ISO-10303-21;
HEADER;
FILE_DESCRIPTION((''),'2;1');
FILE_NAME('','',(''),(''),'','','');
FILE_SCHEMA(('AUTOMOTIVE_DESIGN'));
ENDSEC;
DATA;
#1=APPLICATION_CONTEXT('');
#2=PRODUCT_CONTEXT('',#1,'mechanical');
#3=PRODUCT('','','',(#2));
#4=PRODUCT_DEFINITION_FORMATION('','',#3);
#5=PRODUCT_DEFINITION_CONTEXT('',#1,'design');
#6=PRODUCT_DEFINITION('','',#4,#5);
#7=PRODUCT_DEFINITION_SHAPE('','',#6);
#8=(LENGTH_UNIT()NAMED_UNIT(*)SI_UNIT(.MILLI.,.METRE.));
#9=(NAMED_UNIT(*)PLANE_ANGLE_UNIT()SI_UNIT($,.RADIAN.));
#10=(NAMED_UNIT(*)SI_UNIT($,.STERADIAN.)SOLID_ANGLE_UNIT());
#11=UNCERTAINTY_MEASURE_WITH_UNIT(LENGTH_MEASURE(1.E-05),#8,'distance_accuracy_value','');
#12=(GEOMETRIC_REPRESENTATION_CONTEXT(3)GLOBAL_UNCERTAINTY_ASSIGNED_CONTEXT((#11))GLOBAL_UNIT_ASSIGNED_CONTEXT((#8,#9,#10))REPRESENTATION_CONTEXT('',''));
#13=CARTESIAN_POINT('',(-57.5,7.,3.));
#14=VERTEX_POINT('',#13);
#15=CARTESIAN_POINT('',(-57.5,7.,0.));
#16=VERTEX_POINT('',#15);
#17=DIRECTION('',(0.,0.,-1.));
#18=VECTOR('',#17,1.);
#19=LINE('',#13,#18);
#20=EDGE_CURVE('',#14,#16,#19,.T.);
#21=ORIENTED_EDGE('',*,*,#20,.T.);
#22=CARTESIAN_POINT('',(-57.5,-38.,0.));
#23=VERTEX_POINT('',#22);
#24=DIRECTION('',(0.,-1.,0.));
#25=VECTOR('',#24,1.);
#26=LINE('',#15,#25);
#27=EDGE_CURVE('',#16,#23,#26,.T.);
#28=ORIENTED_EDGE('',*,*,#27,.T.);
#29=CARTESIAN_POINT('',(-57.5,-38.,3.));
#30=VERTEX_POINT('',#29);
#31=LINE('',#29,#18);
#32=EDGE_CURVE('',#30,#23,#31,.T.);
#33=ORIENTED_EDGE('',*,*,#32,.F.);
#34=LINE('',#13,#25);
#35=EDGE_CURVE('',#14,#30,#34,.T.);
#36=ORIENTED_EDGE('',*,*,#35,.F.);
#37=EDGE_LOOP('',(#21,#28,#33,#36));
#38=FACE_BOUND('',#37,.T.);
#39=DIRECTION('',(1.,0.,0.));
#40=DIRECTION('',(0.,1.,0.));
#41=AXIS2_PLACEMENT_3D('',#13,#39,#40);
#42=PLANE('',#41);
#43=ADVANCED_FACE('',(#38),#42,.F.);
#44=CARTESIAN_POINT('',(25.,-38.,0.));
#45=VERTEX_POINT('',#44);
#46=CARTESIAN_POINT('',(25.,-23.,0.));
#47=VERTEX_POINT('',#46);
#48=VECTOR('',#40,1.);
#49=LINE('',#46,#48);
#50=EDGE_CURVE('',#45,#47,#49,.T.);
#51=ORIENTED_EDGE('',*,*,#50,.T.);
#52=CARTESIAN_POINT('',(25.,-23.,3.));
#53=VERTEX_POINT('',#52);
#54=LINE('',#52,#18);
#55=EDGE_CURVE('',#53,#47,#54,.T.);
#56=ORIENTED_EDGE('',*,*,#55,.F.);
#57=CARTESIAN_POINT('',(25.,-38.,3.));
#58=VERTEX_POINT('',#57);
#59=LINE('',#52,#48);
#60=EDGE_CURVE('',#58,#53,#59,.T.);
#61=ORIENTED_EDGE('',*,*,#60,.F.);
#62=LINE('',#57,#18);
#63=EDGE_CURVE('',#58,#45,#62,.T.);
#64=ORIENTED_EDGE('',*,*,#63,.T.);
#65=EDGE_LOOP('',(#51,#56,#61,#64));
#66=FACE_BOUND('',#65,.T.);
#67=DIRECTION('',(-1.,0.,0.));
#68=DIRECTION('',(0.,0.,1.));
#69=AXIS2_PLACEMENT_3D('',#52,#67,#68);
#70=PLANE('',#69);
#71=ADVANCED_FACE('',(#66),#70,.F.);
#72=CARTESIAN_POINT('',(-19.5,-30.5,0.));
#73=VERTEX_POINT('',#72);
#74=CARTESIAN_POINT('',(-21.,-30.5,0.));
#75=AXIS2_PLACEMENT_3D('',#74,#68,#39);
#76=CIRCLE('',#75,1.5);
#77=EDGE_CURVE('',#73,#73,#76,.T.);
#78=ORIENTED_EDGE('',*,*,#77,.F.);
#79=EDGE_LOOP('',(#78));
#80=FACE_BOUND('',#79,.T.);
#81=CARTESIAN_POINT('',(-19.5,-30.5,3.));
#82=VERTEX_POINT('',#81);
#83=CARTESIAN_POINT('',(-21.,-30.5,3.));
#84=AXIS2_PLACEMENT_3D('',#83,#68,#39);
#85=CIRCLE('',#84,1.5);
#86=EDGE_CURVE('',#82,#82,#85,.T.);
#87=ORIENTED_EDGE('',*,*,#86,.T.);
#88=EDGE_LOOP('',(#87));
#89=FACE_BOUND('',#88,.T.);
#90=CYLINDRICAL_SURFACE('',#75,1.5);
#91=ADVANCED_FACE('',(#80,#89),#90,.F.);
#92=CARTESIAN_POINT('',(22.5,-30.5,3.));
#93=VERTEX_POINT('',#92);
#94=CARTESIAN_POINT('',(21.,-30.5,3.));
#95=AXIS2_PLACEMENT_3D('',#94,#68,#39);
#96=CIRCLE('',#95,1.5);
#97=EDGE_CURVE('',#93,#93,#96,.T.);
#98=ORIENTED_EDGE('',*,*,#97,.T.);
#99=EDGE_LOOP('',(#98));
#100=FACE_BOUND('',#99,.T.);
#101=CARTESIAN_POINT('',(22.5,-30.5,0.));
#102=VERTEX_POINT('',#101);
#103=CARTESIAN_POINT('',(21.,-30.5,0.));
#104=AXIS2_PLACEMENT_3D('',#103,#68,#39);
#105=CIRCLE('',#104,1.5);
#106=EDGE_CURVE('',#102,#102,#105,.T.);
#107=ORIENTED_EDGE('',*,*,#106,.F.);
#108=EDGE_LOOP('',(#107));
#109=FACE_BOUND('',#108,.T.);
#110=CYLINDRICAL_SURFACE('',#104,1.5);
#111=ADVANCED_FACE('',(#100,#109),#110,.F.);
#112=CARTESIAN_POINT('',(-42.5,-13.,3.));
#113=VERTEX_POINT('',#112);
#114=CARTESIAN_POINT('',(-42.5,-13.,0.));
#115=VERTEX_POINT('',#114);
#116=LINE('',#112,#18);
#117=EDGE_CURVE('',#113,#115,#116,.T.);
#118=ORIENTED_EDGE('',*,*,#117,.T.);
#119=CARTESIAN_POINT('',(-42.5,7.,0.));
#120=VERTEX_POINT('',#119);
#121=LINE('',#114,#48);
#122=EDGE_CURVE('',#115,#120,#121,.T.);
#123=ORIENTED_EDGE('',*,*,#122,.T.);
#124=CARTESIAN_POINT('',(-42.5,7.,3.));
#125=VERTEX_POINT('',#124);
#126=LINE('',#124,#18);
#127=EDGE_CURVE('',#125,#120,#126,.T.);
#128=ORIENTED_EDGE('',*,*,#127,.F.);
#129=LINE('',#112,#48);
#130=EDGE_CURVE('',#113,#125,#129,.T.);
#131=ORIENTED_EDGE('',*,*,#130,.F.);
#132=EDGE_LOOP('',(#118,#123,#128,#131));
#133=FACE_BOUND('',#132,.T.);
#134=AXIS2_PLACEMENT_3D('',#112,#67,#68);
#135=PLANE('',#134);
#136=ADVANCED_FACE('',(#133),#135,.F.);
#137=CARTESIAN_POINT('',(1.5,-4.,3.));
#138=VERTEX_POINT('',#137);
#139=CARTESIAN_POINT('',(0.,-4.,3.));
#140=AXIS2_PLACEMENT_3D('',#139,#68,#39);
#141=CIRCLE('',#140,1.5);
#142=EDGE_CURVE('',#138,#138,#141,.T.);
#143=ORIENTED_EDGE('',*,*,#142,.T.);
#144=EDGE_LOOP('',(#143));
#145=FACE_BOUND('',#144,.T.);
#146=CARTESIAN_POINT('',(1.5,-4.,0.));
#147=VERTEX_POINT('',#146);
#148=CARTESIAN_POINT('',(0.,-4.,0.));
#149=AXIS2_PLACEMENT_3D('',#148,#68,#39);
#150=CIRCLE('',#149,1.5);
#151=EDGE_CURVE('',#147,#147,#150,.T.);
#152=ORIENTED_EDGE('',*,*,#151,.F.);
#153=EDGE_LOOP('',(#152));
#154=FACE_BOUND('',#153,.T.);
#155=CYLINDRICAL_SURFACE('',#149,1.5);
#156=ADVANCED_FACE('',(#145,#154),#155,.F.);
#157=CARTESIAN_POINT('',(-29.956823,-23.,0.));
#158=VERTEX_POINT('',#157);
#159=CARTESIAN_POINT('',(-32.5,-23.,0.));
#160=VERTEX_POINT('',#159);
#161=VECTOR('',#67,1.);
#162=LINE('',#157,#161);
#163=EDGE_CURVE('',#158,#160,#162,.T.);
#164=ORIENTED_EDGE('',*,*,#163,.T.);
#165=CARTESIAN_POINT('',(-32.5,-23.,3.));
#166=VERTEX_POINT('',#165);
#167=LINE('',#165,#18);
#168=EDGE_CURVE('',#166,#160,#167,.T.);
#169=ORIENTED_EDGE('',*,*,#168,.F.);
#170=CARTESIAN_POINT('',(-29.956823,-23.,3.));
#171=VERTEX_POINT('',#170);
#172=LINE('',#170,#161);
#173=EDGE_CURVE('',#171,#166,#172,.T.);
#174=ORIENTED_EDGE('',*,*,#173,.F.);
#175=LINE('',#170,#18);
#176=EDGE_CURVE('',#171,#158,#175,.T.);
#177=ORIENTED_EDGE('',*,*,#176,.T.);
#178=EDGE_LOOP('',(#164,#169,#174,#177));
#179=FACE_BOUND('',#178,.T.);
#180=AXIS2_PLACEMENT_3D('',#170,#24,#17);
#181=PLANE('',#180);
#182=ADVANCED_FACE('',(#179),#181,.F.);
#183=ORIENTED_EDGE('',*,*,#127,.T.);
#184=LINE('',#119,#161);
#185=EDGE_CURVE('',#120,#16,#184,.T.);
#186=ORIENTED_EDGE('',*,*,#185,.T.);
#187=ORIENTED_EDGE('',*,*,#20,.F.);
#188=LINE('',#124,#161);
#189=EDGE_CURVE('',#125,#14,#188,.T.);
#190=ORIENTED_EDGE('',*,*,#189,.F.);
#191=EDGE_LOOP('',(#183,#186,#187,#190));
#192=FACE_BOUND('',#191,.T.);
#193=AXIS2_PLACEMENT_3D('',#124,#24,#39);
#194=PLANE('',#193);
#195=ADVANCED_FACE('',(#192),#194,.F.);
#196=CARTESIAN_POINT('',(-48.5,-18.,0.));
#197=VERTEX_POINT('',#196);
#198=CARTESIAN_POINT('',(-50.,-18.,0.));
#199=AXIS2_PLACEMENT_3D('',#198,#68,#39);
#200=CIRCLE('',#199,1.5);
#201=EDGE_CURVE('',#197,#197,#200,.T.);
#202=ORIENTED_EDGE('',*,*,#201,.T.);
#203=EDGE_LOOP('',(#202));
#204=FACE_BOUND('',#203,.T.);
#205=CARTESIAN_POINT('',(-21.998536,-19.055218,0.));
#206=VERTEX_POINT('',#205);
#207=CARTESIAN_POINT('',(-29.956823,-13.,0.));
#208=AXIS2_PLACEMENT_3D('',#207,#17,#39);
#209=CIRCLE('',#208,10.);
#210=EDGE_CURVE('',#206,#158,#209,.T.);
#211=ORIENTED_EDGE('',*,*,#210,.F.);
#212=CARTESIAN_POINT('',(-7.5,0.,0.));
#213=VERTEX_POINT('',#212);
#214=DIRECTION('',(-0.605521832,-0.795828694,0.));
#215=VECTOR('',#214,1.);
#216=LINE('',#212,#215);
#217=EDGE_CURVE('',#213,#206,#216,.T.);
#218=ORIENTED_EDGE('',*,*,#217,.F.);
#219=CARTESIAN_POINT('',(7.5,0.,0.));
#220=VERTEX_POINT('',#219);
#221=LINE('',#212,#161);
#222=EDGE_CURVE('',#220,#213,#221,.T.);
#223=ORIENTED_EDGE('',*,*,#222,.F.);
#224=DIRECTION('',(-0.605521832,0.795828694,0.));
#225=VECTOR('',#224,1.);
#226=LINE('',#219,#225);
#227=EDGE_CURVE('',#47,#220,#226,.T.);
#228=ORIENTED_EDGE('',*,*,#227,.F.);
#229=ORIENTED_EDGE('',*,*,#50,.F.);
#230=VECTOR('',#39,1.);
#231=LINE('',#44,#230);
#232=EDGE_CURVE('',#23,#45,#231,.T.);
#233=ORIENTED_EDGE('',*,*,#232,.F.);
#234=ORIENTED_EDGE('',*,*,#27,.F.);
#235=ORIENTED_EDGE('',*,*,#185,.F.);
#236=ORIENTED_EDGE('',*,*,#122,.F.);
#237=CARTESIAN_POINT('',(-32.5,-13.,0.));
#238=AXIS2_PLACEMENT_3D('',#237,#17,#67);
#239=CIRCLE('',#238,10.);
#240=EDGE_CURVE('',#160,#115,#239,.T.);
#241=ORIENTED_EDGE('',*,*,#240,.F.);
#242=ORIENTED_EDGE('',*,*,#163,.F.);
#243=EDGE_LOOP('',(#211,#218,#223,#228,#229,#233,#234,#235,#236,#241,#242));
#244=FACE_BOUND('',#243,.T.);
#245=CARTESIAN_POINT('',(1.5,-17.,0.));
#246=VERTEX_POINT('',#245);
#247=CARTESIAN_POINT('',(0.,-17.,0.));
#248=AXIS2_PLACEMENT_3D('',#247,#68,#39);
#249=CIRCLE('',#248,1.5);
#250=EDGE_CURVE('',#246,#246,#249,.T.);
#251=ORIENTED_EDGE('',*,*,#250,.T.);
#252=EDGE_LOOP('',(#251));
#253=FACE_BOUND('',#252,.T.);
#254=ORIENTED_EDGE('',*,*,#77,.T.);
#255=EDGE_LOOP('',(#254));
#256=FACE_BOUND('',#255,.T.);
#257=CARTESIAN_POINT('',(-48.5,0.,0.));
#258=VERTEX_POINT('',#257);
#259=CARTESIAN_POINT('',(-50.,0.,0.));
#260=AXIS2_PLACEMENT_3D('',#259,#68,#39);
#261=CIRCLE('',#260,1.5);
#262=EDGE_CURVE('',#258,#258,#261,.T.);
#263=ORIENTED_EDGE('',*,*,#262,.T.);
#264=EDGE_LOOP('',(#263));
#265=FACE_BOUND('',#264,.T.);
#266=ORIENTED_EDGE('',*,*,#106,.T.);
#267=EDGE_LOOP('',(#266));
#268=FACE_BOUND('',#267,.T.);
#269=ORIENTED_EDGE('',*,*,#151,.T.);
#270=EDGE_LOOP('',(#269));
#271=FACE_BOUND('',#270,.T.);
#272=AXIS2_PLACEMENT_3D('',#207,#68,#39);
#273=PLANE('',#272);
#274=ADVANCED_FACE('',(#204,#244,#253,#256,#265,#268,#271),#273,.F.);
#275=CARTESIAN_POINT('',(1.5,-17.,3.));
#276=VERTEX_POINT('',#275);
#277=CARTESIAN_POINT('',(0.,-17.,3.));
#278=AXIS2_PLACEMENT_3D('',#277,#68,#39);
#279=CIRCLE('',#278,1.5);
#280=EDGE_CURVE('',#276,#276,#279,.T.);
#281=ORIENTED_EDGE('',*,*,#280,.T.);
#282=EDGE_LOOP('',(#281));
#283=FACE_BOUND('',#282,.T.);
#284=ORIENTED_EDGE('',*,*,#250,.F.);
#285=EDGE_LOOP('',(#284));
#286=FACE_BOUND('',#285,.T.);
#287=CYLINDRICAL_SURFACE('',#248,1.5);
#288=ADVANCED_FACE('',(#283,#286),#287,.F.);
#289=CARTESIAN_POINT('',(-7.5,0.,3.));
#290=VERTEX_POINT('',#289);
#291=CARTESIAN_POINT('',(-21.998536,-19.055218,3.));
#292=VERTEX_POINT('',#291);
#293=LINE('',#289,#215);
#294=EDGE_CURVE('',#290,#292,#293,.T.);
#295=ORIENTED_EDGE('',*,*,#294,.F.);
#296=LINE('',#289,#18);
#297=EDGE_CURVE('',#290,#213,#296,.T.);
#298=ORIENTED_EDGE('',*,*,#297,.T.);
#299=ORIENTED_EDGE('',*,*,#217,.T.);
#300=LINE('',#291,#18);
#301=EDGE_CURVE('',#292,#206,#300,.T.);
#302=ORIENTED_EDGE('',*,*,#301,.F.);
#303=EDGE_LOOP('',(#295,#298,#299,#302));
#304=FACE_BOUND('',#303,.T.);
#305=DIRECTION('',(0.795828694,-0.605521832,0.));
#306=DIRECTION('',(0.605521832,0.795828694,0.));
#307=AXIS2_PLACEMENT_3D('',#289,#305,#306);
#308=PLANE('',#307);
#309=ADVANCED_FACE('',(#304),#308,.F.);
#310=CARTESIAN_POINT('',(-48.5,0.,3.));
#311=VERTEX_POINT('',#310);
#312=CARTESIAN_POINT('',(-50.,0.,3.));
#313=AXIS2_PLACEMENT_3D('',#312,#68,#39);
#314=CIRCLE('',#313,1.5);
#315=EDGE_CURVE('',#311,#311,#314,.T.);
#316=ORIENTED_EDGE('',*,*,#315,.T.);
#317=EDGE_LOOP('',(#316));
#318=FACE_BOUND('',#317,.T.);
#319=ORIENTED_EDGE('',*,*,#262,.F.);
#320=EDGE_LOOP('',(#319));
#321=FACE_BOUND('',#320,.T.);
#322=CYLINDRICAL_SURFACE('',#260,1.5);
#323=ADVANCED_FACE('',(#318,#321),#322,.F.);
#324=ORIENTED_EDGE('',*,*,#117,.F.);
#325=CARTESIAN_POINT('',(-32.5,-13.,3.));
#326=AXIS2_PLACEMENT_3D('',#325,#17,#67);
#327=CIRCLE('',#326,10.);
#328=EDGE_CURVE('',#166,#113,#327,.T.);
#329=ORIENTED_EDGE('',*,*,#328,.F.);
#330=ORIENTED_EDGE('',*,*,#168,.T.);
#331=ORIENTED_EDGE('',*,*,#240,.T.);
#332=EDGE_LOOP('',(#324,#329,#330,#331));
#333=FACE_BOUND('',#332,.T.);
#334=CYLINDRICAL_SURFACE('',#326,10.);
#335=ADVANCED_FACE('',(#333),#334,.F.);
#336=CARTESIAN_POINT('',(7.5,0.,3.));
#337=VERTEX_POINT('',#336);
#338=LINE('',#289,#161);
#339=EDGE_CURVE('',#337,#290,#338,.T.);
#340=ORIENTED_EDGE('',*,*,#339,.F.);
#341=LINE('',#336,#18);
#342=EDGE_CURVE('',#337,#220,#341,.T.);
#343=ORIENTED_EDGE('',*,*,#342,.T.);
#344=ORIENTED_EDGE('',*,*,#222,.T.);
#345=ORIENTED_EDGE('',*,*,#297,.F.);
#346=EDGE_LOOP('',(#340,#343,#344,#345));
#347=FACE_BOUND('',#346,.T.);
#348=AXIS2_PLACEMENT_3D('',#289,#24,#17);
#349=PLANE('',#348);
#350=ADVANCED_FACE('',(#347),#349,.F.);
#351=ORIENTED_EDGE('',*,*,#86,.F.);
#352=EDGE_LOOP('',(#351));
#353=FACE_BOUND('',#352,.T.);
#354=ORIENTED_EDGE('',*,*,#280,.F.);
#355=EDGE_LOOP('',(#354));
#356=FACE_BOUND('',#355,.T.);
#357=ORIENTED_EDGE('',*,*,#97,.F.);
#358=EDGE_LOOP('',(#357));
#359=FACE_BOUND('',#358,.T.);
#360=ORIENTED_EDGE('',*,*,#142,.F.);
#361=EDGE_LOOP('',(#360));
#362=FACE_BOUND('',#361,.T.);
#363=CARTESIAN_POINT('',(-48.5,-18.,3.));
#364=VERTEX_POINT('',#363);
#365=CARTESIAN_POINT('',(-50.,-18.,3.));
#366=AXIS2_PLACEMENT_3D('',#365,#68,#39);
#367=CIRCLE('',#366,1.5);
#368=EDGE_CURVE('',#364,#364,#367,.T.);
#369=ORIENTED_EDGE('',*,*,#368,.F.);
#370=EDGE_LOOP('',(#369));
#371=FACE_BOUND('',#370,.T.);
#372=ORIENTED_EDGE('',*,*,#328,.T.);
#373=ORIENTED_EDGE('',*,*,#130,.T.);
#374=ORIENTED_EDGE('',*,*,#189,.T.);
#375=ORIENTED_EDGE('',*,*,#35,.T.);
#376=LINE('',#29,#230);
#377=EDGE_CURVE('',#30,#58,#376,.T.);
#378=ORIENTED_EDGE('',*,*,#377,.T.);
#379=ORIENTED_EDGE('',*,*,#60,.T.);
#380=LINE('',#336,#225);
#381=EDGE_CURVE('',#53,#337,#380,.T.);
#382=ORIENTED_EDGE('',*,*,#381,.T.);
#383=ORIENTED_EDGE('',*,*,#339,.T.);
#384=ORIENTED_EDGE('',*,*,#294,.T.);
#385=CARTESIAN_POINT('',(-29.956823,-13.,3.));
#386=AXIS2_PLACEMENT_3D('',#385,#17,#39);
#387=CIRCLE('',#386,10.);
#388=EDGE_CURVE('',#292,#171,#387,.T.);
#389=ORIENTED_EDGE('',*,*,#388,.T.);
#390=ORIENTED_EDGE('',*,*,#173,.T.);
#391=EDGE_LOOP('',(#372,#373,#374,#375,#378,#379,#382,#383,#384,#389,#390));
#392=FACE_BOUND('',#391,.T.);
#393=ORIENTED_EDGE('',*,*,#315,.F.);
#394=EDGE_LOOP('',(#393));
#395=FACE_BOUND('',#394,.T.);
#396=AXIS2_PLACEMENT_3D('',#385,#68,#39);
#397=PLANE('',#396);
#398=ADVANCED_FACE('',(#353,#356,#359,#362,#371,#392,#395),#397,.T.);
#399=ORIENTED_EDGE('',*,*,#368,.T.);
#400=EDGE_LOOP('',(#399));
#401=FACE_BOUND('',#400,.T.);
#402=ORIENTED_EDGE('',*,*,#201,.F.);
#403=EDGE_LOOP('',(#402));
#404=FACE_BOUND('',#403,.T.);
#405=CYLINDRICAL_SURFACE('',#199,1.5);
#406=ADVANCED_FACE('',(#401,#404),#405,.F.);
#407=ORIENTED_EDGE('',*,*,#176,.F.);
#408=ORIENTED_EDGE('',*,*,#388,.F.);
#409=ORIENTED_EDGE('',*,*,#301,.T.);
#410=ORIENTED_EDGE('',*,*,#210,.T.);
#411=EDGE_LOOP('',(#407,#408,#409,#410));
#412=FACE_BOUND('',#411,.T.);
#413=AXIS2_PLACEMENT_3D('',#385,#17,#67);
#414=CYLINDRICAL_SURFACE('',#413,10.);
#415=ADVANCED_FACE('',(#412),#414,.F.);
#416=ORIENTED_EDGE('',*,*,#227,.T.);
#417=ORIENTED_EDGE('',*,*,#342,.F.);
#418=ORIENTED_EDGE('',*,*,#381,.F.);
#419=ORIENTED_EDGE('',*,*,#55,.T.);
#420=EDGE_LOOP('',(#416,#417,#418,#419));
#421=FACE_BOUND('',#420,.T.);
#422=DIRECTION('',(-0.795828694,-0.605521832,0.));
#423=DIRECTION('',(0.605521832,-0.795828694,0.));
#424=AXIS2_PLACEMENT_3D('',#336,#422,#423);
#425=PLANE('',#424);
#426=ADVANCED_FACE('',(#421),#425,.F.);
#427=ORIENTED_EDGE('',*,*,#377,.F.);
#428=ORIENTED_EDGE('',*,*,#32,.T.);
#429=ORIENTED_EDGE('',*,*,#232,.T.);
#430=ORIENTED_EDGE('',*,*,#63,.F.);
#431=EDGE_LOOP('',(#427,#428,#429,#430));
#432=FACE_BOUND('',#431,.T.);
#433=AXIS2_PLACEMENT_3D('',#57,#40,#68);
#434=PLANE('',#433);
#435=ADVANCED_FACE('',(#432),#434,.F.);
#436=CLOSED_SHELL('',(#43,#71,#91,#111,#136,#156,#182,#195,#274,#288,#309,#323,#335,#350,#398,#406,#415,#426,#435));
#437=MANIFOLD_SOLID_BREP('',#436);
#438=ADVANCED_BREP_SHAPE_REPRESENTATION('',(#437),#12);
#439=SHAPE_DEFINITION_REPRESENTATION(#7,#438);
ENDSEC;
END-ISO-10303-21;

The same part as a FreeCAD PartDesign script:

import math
import FreeCAD as App
import Part
import Sketcher

V = App.Vector

doc = App.newDocument("Part")
body = doc.addObject("PartDesign::Body", "Body")

# Sketch on XY plane
sketch1 = body.newObject("Sketcher::SketchObject", "Sketch")
sketch1.AttachmentSupport = (doc.getObject("XY_Plane"), [""])
sketch1.MapMode = "FlatFace"
sketch1.addGeometry([
    Part.LineSegment(V(7.5, 0, 0), V(-7.5, 0, 0)),  # 0
    Part.LineSegment(V(-7.5, 0, 0), V(-22, -19.1, 0)),  # 1
    Part.ArcOfCircle(Part.Circle(V(-30, -13, 0), V(0, 0, 1), 10), math.radians(-90), math.radians(-37)),  # 2
    Part.LineSegment(V(-30, -23, 0), V(-32.5, -23, 0)),  # 3
    Part.ArcOfCircle(Part.Circle(V(-32.5, -13, 0), V(0, 0, 1), 10), math.radians(180), math.radians(270)),  # 4
    Part.LineSegment(V(-42.5, -13, 0), V(-42.5, 7, 0)),  # 5
    Part.LineSegment(V(-42.5, 7, 0), V(-57.5, 7, 0)),  # 6
    Part.LineSegment(V(-57.5, 7, 0), V(-57.5, -38, 0)),  # 7
    Part.LineSegment(V(-57.5, -38, 0), V(25, -38, 0)),  # 8
    Part.LineSegment(V(25, -38, 0), V(25, -23, 0)),  # 9
    Part.LineSegment(V(25, -23, 0), V(7.5, 0, 0)),  # 10
], False)
sketch1.addConstraint([
    Sketcher.Constraint("Coincident", 0, 2, 1, 1),
    Sketcher.Constraint("Tangent", 1, 2, 2, 2),
    Sketcher.Constraint("Tangent", 2, 1, 3, 1),
    Sketcher.Constraint("Tangent", 3, 2, 4, 2),
    Sketcher.Constraint("Tangent", 4, 1, 5, 1),
    Sketcher.Constraint("Coincident", 5, 2, 6, 1),
    Sketcher.Constraint("Coincident", 6, 2, 7, 1),
    Sketcher.Constraint("Coincident", 7, 2, 8, 1),
    Sketcher.Constraint("Coincident", 8, 2, 9, 1),
    Sketcher.Constraint("Coincident", 9, 2, 10, 1),
    Sketcher.Constraint("Coincident", 10, 2, 0, 1),
    Sketcher.Constraint("Horizontal", 0),
    Sketcher.Constraint("Horizontal", 3),
    Sketcher.Constraint("Vertical", 5),
    Sketcher.Constraint("Horizontal", 6),
    Sketcher.Constraint("Vertical", 7),
    Sketcher.Constraint("Horizontal", 8),
    Sketcher.Constraint("Vertical", 9),
    Sketcher.Constraint("Equal", 2, 4),
    Sketcher.Constraint("Symmetric", 0, 2, 10, 2, -1, 1),
    Sketcher.Constraint("Horizontal", 3, 2, 9, 2),
    Sketcher.Constraint("Equal", 0, 6),
    Sketcher.Constraint("Equal", 6, 9),
    Sketcher.Constraint("Radius", 2, 10.0),
    Sketcher.Constraint("DistanceX", 0, 2, 0, 1, 15.0),
    Sketcher.Constraint("DistanceY", 5, 1, 5, 2, 20.0),
    Sketcher.Constraint("DistanceX", 8, 1, 8, 2, 82.5),
    Sketcher.Constraint("DistanceY", 2, 3, -1, 1, 13.0),
    Sketcher.Constraint("DistanceX", -1, 1, 8, 2, 25.0),
    Sketcher.Constraint("Distance", 1, 23.943869),
])
pad1 = body.newObject("PartDesign::Pad", "Pad")
pad1.Profile = sketch1
pad1.Length = 3

# Sketch on XY plane
sketch2 = body.newObject("Sketcher::SketchObject", "Sketch001")
sketch2.AttachmentSupport = (doc.getObject("XY_Plane"), [""])
sketch2.MapMode = "FlatFace"
sketch2.AttachmentOffset = App.Placement(V(0, 0, 3), App.Rotation())
sketch2.addGeometry([
    Part.Circle(V(0, -4, 0), V(0, 0, 1), 1.5),  # 0
    Part.Circle(V(0, -17, 0), V(0, 0, 1), 1.5),  # 1
    Part.Circle(V(-21, -30.5, 0), V(0, 0, 1), 1.5),  # 2
    Part.Circle(V(21, -30.5, 0), V(0, 0, 1), 1.5),  # 3
    Part.Circle(V(-50, 0, 0), V(0, 0, 1), 1.5),  # 4
    Part.Circle(V(-50, -18, 0), V(0, 0, 1), 1.5),  # 5
], False)
sketch2.addConstraint([
    Sketcher.Constraint("Equal", 0, 1),
    Sketcher.Constraint("Equal", 1, 2),
    Sketcher.Constraint("Equal", 2, 3),
    Sketcher.Constraint("Equal", 3, 4),
    Sketcher.Constraint("Equal", 4, 5),
    Sketcher.Constraint("Symmetric", 2, 3, 3, 3, -2),
    Sketcher.Constraint("PointOnObject", 0, 3, -2),
    Sketcher.Constraint("PointOnObject", 1, 3, -2),
    Sketcher.Constraint("PointOnObject", 4, 3, -1),
    Sketcher.Constraint("Vertical", 4, 3, 5, 3),
    Sketcher.Constraint("Diameter", 0, 3.0),
    Sketcher.Constraint("DistanceY", 0, 3, -1, 1, 4.0),
    Sketcher.Constraint("DistanceY", 1, 3, -1, 1, 17.0),
    Sketcher.Constraint("DistanceX", 2, 3, -1, 1, 21.0),
    Sketcher.Constraint("DistanceX", 4, 3, -1, 1, 50.0),
    Sketcher.Constraint("DistanceY", 5, 3, -1, 1, 18.0),
    Sketcher.Constraint("DistanceY", 2, 3, -1, 1, 30.5),
])
pocket1 = body.newObject("PartDesign::Pocket", "Pocket")
pocket1.Profile = sketch2
pocket1.Length = 3

doc.recompute()
